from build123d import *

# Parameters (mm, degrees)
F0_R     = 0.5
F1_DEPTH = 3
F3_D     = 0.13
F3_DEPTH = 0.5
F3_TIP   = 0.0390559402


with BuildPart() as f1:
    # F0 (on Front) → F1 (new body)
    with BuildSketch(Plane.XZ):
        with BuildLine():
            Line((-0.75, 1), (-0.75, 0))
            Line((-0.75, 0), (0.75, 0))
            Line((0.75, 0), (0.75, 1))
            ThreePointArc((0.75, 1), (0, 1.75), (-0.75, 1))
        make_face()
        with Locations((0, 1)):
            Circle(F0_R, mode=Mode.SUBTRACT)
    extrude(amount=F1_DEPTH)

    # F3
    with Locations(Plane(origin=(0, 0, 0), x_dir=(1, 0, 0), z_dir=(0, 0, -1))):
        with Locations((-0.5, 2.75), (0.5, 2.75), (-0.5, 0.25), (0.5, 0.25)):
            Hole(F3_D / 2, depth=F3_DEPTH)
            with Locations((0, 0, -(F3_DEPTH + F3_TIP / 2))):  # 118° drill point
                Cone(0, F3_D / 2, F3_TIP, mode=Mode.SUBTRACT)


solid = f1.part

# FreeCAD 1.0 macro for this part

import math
import FreeCAD as App
import Part
import Sketcher
from FreeCAD import Vector

doc = App.newDocument("Part")
body = doc.addObject("PartDesign::Body", "Body")

sketch1 = doc.addObject("Sketcher::SketchObject", "Sketch")
body.addObject(sketch1)
sketch1.AttachmentSupport = (doc.XZ_Plane, [""])
sketch1.MapMode = "FlatFace"
sketch1.addGeometry(Part.LineSegment(Vector(-0.8, 1, 0), Vector(-0.8, 0, 0)), False)
sketch1.addGeometry(Part.LineSegment(Vector(-0.8, 0, 0), Vector(0.8, 0, 0)), False)
sketch1.addGeometry(Part.LineSegment(Vector(0.8, 0, 0), Vector(0.8, 1, 0)), False)
sketch1.addGeometry(Part.ArcOfCircle(Part.Circle(Vector(0, 1, 0), Vector(0, 0, 1), 0.8), math.radians(0), math.radians(180)), False)
sketch1.addGeometry(Part.Circle(Vector(0, 1, 0), Vector(0, 0, 1), 0.5), False)
sketch1.addConstraint(Sketcher.Constraint("Coincident", 0, 2, 1, 1))
sketch1.addConstraint(Sketcher.Constraint("Coincident", 1, 2, 2, 1))
sketch1.addConstraint(Sketcher.Constraint("Tangent", 2, 2, 3, 1))
sketch1.addConstraint(Sketcher.Constraint("Tangent", 3, 2, 0, 1))
sketch1.addConstraint(Sketcher.Constraint("Vertical", 0))
sketch1.addConstraint(Sketcher.Constraint("Horizontal", 1))
sketch1.addConstraint(Sketcher.Constraint("Vertical", 2))
sketch1.addConstraint(Sketcher.Constraint("Coincident", 4, 3, 3, 3))
sketch1.addConstraint(Sketcher.Constraint("Symmetric", 0, 2, 1, 2, -1, 1))
sketch1.addConstraint(Sketcher.Constraint("Diameter", 4, 1.0))
sketch1.addConstraint(Sketcher.Constraint("DistanceY", 0, 2, 0, 1, 1.0))
sketch1.addConstraint(Sketcher.Constraint("Radius", 3, 0.75))
pad1 = doc.addObject("PartDesign::Pad", "Pad")
body.addObject(pad1)
pad1.Profile = sketch1
pad1.Length = 3

sketch2 = doc.addObject("Sketcher::SketchObject", "Sketch001")
body.addObject(sketch2)
sketch2.AttachmentSupport = (doc.XY_Plane, [""])
sketch2.MapMode = "FlatFace"
sketch2.addGeometry(Part.Circle(Vector(-0.5, -2.75, 0), Vector(0, 0, 1), 0.07), False)
sketch2.addGeometry(Part.Circle(Vector(0.5, -2.75, 0), Vector(0, 0, 1), 0.07), False)
sketch2.addGeometry(Part.Circle(Vector(-0.5, -0.25, 0), Vector(0, 0, 1), 0.07), False)
sketch2.addGeometry(Part.Circle(Vector(0.5, -0.25, 0), Vector(0, 0, 1), 0.07), False)
sketch2.addConstraint(Sketcher.Constraint("Equal", 0, 1))
sketch2.addConstraint(Sketcher.Constraint("Equal", 1, 2))
sketch2.addConstraint(Sketcher.Constraint("Equal", 2, 3))
sketch2.addConstraint(Sketcher.Constraint("Symmetric", 0, 3, 1, 3, -2))
sketch2.addConstraint(Sketcher.Constraint("Symmetric", 2, 3, 3, 3, -2))
sketch2.addConstraint(Sketcher.Constraint("Vertical", 0, 3, 2, 3))
sketch2.addConstraint(Sketcher.Constraint("Diameter", 0, 0.13))
sketch2.addConstraint(Sketcher.Constraint("DistanceX", 0, 3, 1, 3, 1.0))
sketch2.addConstraint(Sketcher.Constraint("DistanceY", 0, 3, 2, 3, 2.5))
sketch2.addConstraint(Sketcher.Constraint("DistanceY", 0, 3, -1, 1, 2.75))
doc.recompute()
hole = doc.addObject("PartDesign::Hole", "Hole")
body.addObject(hole)
hole.Profile = sketch2
hole.ThreadType = "None"
hole.Diameter = 0.13
hole.DepthType = "Dimension"
hole.Depth = 0.5
hole.DrillPoint = "Angled"
hole.DrillPointAngle = 118
hole.Reversed = True

doc.recompute()
